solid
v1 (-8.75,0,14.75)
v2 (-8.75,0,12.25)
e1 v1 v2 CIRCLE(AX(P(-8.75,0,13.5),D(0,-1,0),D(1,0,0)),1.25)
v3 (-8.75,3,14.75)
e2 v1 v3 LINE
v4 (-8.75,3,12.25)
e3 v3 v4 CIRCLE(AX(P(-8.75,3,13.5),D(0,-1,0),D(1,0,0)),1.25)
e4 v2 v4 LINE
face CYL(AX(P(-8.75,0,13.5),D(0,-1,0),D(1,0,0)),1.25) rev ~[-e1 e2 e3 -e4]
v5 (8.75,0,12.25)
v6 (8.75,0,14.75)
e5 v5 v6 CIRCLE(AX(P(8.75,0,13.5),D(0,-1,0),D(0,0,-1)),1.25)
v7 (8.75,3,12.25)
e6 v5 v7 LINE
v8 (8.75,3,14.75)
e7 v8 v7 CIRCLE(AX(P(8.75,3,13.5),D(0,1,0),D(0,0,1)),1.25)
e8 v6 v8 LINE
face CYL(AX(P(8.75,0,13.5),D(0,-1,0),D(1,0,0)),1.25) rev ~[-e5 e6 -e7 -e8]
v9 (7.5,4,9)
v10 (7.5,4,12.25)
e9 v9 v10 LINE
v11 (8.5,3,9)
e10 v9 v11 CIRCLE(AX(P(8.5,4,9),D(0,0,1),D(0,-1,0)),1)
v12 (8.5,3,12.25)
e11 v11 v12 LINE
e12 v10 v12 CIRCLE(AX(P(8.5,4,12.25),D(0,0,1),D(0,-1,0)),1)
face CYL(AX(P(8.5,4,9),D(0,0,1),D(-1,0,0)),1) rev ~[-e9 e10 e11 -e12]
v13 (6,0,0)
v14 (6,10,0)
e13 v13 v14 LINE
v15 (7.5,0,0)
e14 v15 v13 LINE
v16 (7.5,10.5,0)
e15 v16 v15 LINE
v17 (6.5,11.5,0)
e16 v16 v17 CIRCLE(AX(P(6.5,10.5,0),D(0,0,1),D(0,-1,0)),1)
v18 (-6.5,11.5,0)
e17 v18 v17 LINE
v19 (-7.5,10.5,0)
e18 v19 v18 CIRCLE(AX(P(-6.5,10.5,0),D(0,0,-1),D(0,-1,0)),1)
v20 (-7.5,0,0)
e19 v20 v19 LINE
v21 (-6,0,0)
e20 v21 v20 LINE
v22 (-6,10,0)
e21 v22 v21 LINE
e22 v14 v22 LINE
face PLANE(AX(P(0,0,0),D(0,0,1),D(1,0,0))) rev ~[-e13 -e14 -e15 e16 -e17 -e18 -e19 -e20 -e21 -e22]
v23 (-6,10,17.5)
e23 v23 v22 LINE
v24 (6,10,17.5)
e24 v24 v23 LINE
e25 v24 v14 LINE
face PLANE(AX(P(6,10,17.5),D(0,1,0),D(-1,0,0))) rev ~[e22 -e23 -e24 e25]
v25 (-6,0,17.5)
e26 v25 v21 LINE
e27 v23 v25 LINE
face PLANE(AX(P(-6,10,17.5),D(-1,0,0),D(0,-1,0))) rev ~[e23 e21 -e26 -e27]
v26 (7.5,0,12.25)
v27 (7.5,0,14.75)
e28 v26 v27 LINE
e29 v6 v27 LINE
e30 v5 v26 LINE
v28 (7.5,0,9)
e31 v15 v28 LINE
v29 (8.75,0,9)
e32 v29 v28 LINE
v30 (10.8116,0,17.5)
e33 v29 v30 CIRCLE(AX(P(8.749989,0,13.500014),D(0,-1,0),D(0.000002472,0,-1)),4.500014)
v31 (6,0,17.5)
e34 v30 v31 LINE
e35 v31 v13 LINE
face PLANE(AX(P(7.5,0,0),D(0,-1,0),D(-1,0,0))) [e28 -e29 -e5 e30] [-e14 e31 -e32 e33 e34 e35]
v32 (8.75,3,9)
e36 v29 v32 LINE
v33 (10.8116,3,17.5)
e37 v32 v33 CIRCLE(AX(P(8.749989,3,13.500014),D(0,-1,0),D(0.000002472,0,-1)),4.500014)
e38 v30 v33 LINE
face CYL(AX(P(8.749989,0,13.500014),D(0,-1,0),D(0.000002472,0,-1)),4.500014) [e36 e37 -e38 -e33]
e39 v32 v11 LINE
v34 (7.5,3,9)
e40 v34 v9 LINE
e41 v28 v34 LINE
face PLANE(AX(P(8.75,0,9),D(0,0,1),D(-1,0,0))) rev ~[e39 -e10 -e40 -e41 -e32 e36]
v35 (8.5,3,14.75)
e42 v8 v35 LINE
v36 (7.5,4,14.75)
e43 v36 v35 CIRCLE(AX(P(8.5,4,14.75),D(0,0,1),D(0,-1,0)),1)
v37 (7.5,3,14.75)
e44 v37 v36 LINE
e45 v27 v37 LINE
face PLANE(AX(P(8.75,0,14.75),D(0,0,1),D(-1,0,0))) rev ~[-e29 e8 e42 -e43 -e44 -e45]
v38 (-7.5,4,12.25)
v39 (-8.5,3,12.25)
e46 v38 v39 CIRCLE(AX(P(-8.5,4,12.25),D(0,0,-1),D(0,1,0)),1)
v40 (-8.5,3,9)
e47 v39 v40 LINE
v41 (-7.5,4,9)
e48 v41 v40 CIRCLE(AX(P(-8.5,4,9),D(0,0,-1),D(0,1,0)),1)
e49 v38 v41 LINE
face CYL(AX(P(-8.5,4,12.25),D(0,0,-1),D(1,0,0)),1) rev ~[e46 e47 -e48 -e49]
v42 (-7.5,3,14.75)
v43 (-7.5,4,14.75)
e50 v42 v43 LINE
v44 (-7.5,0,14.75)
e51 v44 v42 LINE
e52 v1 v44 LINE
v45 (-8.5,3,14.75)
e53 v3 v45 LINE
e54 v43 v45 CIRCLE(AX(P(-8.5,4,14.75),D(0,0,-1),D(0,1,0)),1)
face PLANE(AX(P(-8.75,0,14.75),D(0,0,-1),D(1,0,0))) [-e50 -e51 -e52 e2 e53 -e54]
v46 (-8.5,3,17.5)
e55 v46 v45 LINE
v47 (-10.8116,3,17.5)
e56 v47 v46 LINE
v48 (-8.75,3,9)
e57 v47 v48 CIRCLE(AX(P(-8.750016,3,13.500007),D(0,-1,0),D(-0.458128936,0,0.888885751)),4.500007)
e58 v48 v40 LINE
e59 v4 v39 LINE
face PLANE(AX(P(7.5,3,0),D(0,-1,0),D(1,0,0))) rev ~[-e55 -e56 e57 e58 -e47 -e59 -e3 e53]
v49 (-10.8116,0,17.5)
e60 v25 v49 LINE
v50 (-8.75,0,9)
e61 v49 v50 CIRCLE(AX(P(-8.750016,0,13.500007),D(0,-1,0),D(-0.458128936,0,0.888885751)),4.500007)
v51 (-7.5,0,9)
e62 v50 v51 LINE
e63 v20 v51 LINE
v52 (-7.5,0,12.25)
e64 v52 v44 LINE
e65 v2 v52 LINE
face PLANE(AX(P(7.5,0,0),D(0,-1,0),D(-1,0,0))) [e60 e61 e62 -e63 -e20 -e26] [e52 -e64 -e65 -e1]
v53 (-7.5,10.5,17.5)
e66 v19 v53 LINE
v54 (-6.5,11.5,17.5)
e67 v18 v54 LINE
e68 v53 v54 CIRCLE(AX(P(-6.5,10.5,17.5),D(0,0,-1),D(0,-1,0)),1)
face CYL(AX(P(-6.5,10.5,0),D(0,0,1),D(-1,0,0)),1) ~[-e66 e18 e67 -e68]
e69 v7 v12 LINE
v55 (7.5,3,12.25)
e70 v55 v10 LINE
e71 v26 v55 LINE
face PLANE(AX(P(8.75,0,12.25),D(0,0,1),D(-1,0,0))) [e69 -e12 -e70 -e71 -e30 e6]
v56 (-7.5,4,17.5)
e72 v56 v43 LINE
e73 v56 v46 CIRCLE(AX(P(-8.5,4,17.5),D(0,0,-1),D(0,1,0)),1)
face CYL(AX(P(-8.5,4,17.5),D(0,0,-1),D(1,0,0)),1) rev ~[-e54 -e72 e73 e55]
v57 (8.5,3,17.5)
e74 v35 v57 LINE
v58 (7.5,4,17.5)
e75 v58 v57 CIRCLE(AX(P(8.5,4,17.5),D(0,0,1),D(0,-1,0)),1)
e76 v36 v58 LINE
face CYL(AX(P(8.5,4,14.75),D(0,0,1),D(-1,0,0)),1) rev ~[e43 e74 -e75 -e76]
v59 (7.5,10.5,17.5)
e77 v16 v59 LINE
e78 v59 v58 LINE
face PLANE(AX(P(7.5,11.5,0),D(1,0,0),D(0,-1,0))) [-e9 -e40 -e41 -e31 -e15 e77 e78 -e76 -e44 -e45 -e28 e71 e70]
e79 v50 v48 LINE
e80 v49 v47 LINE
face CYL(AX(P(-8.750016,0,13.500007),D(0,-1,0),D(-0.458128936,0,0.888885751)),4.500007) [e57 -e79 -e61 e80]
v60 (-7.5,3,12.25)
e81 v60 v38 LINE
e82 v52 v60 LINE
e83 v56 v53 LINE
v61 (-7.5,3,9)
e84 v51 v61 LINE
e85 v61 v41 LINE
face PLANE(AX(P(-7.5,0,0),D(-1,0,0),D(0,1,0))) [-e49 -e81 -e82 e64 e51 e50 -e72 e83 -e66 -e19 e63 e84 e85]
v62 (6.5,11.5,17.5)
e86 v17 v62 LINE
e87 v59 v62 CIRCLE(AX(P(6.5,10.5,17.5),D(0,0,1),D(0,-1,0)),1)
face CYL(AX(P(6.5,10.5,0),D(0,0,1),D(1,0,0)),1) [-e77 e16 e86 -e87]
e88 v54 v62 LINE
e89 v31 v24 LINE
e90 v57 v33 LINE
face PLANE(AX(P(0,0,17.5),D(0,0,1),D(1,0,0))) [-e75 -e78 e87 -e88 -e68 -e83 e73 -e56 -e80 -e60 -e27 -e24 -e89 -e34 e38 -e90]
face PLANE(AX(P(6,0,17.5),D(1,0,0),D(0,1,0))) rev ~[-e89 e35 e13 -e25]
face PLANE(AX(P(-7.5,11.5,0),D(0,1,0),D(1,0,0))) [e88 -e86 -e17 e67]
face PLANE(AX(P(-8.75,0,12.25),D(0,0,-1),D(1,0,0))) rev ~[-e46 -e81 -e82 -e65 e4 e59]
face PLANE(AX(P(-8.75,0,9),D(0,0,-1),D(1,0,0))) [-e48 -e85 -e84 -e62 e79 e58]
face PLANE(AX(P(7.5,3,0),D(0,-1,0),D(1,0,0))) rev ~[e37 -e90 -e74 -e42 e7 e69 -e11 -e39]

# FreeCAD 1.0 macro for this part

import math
import FreeCAD as App
import Part
import Sketcher

V = App.Vector


def edges_at(feature, points):
    """Names of the edges that pass closest to the given points."""
    edges = feature.Shape.Edges
    near = lambda p: min(range(len(edges)), key=lambda i: edges[i].distToShape(Part.Vertex(*p))[0])
    return sorted({f"Edge{near(p) + 1}" for p in points})


def add_polygon(sketch, points):
    """Adds a closed chain of lines whose ends are joined by coincident constraints."""
    first, n = sketch.GeometryCount, len(points)
    for a, b in zip(points, points[1:] + points[:1]):
        sketch.addGeometry(Part.LineSegment(App.Vector(*a, 0), App.Vector(*b, 0)), False)
    for i in range(n):
        sketch.addConstraint(Sketcher.Constraint("Coincident", first + i, 2, first + (i + 1) % n, 1))

doc = App.newDocument("Part")
body = doc.addObject("PartDesign::Body", "Body")

sketch1 = body.newObject("Sketcher::SketchObject", "Sketch")
sketch1.AttachmentSupport = (doc.getObject("XY_Plane"), [""])
sketch1.MapMode = "FlatFace"
add_polygon(sketch1, [(-7.5, 0), (7.5, 0), (7.5, 11.5), (-7.5, 11.5)])
sketch1.addConstraint([
    Sketcher.Constraint("Horizontal", 0),
    Sketcher.Constraint("Vertical", 1),
    Sketcher.Constraint("Horizontal", 2),
    Sketcher.Constraint("Vertical", 3),
    Sketcher.Constraint("Symmetric", 0, 2, 3, 2, -1, 1),
    Sketcher.Constraint("DistanceX", 0, 1, 0, 2, 15.0),
    Sketcher.Constraint("DistanceY", 1, 1, 1, 2, 11.5),
])
pad1 = body.newObject("PartDesign::Pad", "Pad")
pad1.Profile = sketch1
pad1.Length = 17.5

sketch2 = body.newObject("Sketcher::SketchObject", "Sketch001")
sketch2.AttachmentSupport = (doc.getObject("XY_Plane"), [""])
sketch2.MapMode = "FlatFace"
sketch2.AttachmentOffset = App.Placement(V(0, 0, 17.5), App.Rotation())
add_polygon(sketch2, [(-6, 10), (-6, 0), (6, 0), (6, 10)])
sketch2.addConstraint([
    Sketcher.Constraint("Vertical", 0),
    Sketcher.Constraint("Horizontal", 1),
    Sketcher.Constraint("Vertical", 2),
    Sketcher.Constraint("Horizontal", 3),
    Sketcher.Constraint("Symmetric", 0, 2, 1, 2, -1, 1),
    Sketcher.Constraint("DistanceX", 1, 1, 1, 2, 12.0),
    Sketcher.Constraint("DistanceY", 0, 2, 0, 1, 10.0),
])
pocket1 = body.newObject("PartDesign::Pocket", "Pocket")
pocket1.Profile = sketch2
pocket1.Type = "ThroughAll"
doc.recompute()

fillet = body.newObject("PartDesign::Fillet", "Fillet")
fillet.Base = (pocket1, edges_at(pocket1, [(7.5, 11.5, 8.75), (-7.5, 11.5, 8.75)]))
fillet.Radius = 1

sketch3 = body.newObject("Sketcher::SketchObject", "Sketch002")
sketch3.AttachmentSupport = (doc.getObject("XZ_Plane"), [""])
sketch3.MapMode = "FlatFace"
sketch3.addGeometry([
    Part.LineSegment(V(7.5, 12.25, 0), V(7.5, 9, 0)),
    Part.LineSegment(V(7.5, 9, 0), V(8.75, 9, 0)),
    Part.ArcOfCircle(Part.Circle(V(8.75, 13.5, 0), V(0, 0, 1), 4.5), math.radians(-90), math.radians(62.733422)),
    Part.LineSegment(V(10.8116, 17.5, 0), V(7.5, 17.5, 0)),
    Part.LineSegment(V(7.5, 17.5, 0), V(7.5, 14.75, 0)),
    Part.LineSegment(V(7.5, 14.75, 0), V(8.75, 14.75, 0)),
    Part.ArcOfCircle(Part.Circle(V(8.75, 13.5, 0), V(0, 0, 1), 1.25), math.radians(-90), math.radians(90)),
    Part.LineSegment(V(8.75, 12.25, 0), V(7.5, 12.25, 0)),
    Part.ArcOfCircle(Part.Circle(V(-8.75, 13.5, 0), V(0, 0, 1), 1.25), math.radians(90), math.radians(270)),
    Part.LineSegment(V(-8.75, 14.75, 0), V(-7.5, 14.75, 0)),
    Part.LineSegment(V(-7.5, 14.75, 0), V(-7.5, 17.5, 0)),
    Part.LineSegment(V(-7.5, 17.5, 0), V(-10.8116, 17.5, 0)),
    Part.ArcOfCircle(Part.Circle(V(-8.75, 13.5, 0), V(0, 0, 1), 4.500022), math.radians(117.266578), math.radians(270)),
    Part.LineSegment(V(-8.75, 9, 0), V(-7.5, 9, 0)),
    Part.LineSegment(V(-7.5, 9, 0), V(-7.5, 12.25, 0)),
    Part.LineSegment(V(-7.5, 12.25, 0), V(-8.75, 12.25, 0)),
], False)
sketch3.addConstraint([
    Sketcher.Constraint("Coincident", 0, 2, 1, 1),
    Sketcher.Constraint("Tangent", 1, 2, 2, 1),
    Sketcher.Constraint("Coincident", 2, 2, 3, 1),
    Sketcher.Constraint("Coincident", 3, 2, 4, 1),
    Sketcher.Constraint("Coincident", 4, 2, 5, 1),
    Sketcher.Constraint("Tangent", 5, 2, 6, 2),
    Sketcher.Constraint("Tangent", 6, 1, 7, 1),
    Sketcher.Constraint("Coincident", 7, 2, 0, 1),
    Sketcher.Constraint("Tangent", 8, 1, 9, 1),
    Sketcher.Constraint("Coincident", 9, 2, 10, 1),
    Sketcher.Constraint("Coincident", 10, 2, 11, 1),
    Sketcher.Constraint("Coincident", 11, 2, 12, 1),
    Sketcher.Constraint("Tangent", 12, 2, 13, 1),
    Sketcher.Constraint("Coincident", 13, 2, 14, 1),
    Sketcher.Constraint("Coincident", 14, 2, 15, 1),
    Sketcher.Constraint("Tangent", 15, 2, 8, 2),
    Sketcher.Constraint("Vertical", 0),
    Sketcher.Constraint("Horizontal", 1),
    Sketcher.Constraint("Horizontal", 3),
    Sketcher.Constraint("Vertical", 4),
    Sketcher.Constraint("Horizontal", 5),
    Sketcher.Constraint("Horizontal", 7),
    Sketcher.Constraint("Horizontal", 9),
    Sketcher.Constraint("Vertical", 10),
    Sketcher.Constraint("Horizontal", 11),
    Sketcher.Constraint("Horizontal", 13),
    Sketcher.Constraint("Vertical", 14),
    Sketcher.Constraint("Horizontal", 15),
    Sketcher.Constraint("Coincident", 6, 3, 2, 3),
    Sketcher.Constraint("Coincident", 12, 3, 8, 3),
    Sketcher.Constraint("Equal", 6, 8),
    Sketcher.Constraint("Equal", 2, 12),
    Sketcher.Constraint("Symmetric", 2, 3, 8, 3, -2),
    Sketcher.Constraint("Symmetric", 3, 2, 10, 2, -2),
    Sketcher.Constraint("Vertical", 0, 2, 3, 2),
    Sketcher.Constraint("Vertical", 10, 2, 13, 2),
    Sketcher.Constraint("Radius", 2, 4.5),
    Sketcher.Constraint("Radius", 6, 1.25),
    Sketcher.Constraint("DistanceY", 2, 3, 2, 2, 4.0),
    Sketcher.Constraint("DistanceY", -1, 1, 2, 2, 17.5),
    Sketcher.Constraint("DistanceX", 8, 3, 2, 3, 17.5),
    Sketcher.Constraint("DistanceX", 9, 2, 4, 2, 15.0),
])
pad2 = body.newObject("PartDesign::Pad", "Pad001")
pad2.Profile = sketch3
pad2.Length = 3
pad2.Reversed = True
doc.recompute()

fillet2 = body.newObject("PartDesign::Fillet", "Fillet001")
fillet2.Base = (pad2, edges_at(pad2, [
    (-7.5, 3, 10.625),
    (-7.5, 3, 16.125),
    (7.5, 3, 16.125),
    (7.5, 3, 10.625),
]))
fillet2.Radius = 1

doc.recompute()
